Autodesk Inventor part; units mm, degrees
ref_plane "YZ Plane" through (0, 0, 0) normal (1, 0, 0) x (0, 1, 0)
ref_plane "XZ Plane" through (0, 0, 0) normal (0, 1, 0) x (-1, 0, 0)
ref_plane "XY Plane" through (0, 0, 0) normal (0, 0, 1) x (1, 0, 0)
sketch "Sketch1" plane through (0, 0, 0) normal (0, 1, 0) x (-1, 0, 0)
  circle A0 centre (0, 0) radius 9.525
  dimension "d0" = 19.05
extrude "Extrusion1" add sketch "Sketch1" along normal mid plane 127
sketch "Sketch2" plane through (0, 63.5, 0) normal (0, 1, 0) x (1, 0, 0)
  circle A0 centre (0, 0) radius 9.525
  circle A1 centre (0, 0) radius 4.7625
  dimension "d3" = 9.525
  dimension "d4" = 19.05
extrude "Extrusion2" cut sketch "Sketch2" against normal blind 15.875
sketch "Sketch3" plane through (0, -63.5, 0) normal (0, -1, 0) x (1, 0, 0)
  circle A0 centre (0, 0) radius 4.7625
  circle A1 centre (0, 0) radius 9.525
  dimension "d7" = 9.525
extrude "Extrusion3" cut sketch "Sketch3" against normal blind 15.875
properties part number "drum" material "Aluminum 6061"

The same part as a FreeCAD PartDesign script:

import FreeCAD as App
import Part
import Sketcher
Q = App.Units.Quantity

doc = App.newDocument("Part")
params = doc.addObject("Spreadsheet::Sheet", "Params")
for row, (alias, value) in enumerate([
    ("sketch1_diameter", "0.75 in"),
    ("pad1_length", "5 in"),
    ("sketch2_diameter", "0.75 in"),
    ("sketch2_diameter2", "0.375 in"),
    ("pocket1_length", "0.625 in"),
    ("sketch3_diameter", "0.75 in"),
    ("sketch3_diameter2", "0.375 in"),
    ("pocket2_length", "0.625 in"),
], start=1):
    params.set(f"A{row}", alias)
    params.set(f"B{row}", "=" + value)
    params.setAlias(f"B{row}", alias)

body = doc.addObject("PartDesign::Body", "Body")

# Sketch on XZ plane
sketch1 = body.newObject("Sketcher::SketchObject", "Sketch")
sketch1.AttachmentSupport = (doc.getObject("XZ_Plane"), [""])
sketch1.MapMode = "FlatFace"
sketch1.addGeometry(Part.Circle(App.Vector(0, 0, 0), App.Vector(0, 0, 1), 10), False)
sketch1.addConstraint([
    Sketcher.Constraint("Coincident", 0, 3, -1, 1),
    Sketcher.Constraint("Diameter", 0, Q("0.75 in")),
])
sketch1.setExpression("Constraints[1]", "Params.sketch1_diameter")
pad1 = body.newObject("PartDesign::Pad", "Pad")
pad1.Profile = sketch1
pad1.setExpression("Length", "Params.pad1_length")
pad1.Midplane = True

# Sketch on XZ plane
sketch2 = body.newObject("Sketcher::SketchObject", "Sketch001")
sketch2.AttachmentSupport = (doc.getObject("XZ_Plane"), [""])
sketch2.MapMode = "FlatFace"
sketch2.AttachmentOffset = App.Placement(App.Vector(0, 0, -2.5 * 25.4), App.Rotation())
sketch2.addGeometry([
    Part.Circle(App.Vector(0, 0, 0), App.Vector(0, 0, 1), 9.5),
    Part.Circle(App.Vector(0, 0, 0), App.Vector(0, 0, 1), 4.8),
], False)
sketch2.addConstraint([
    Sketcher.Constraint("Coincident", 0, 3, -1, 1),
    Sketcher.Constraint("Coincident", 1, 3, -1, 1),
    Sketcher.Constraint("Diameter", 0, Q("0.75 in")),
    Sketcher.Constraint("Diameter", 1, Q("0.375 in")),
])
sketch2.setExpression("Constraints[2]", "Params.sketch2_diameter")
sketch2.setExpression("Constraints[3]", "Params.sketch2_diameter2")
pocket1 = body.newObject("PartDesign::Pocket", "Pocket")
pocket1.Profile = sketch2
pocket1.setExpression("Length", "Params.pocket1_length")
pocket1.Reversed = True

# Sketch on XZ plane
sketch3 = body.newObject("Sketcher::SketchObject", "Sketch002")
sketch3.AttachmentSupport = (doc.getObject("XZ_Plane"), [""])
sketch3.MapMode = "FlatFace"
sketch3.AttachmentOffset = App.Placement(App.Vector(0, 0, 2.5 * 25.4), App.Rotation())
sketch3.addGeometry([
    Part.Circle(App.Vector(0, 0, 0), App.Vector(0, 0, 1), 9.5),
    Part.Circle(App.Vector(0, 0, 0), App.Vector(0, 0, 1), 4.8),
], False)
sketch3.addConstraint([
    Sketcher.Constraint("Coincident", 0, 3, -1, 1),
    Sketcher.Constraint("Coincident", 1, 3, -1, 1),
    Sketcher.Constraint("Diameter", 0, Q("0.75 in")),
    Sketcher.Constraint("Diameter", 1, Q("0.375 in")),
])
sketch3.setExpression("Constraints[2]", "Params.sketch3_diameter")
sketch3.setExpression("Constraints[3]", "Params.sketch3_diameter2")
pocket2 = body.newObject("PartDesign::Pocket", "Pocket001")
pocket2.Profile = sketch3
pocket2.setExpression("Length", "Params.pocket2_length")

doc.recompute()
